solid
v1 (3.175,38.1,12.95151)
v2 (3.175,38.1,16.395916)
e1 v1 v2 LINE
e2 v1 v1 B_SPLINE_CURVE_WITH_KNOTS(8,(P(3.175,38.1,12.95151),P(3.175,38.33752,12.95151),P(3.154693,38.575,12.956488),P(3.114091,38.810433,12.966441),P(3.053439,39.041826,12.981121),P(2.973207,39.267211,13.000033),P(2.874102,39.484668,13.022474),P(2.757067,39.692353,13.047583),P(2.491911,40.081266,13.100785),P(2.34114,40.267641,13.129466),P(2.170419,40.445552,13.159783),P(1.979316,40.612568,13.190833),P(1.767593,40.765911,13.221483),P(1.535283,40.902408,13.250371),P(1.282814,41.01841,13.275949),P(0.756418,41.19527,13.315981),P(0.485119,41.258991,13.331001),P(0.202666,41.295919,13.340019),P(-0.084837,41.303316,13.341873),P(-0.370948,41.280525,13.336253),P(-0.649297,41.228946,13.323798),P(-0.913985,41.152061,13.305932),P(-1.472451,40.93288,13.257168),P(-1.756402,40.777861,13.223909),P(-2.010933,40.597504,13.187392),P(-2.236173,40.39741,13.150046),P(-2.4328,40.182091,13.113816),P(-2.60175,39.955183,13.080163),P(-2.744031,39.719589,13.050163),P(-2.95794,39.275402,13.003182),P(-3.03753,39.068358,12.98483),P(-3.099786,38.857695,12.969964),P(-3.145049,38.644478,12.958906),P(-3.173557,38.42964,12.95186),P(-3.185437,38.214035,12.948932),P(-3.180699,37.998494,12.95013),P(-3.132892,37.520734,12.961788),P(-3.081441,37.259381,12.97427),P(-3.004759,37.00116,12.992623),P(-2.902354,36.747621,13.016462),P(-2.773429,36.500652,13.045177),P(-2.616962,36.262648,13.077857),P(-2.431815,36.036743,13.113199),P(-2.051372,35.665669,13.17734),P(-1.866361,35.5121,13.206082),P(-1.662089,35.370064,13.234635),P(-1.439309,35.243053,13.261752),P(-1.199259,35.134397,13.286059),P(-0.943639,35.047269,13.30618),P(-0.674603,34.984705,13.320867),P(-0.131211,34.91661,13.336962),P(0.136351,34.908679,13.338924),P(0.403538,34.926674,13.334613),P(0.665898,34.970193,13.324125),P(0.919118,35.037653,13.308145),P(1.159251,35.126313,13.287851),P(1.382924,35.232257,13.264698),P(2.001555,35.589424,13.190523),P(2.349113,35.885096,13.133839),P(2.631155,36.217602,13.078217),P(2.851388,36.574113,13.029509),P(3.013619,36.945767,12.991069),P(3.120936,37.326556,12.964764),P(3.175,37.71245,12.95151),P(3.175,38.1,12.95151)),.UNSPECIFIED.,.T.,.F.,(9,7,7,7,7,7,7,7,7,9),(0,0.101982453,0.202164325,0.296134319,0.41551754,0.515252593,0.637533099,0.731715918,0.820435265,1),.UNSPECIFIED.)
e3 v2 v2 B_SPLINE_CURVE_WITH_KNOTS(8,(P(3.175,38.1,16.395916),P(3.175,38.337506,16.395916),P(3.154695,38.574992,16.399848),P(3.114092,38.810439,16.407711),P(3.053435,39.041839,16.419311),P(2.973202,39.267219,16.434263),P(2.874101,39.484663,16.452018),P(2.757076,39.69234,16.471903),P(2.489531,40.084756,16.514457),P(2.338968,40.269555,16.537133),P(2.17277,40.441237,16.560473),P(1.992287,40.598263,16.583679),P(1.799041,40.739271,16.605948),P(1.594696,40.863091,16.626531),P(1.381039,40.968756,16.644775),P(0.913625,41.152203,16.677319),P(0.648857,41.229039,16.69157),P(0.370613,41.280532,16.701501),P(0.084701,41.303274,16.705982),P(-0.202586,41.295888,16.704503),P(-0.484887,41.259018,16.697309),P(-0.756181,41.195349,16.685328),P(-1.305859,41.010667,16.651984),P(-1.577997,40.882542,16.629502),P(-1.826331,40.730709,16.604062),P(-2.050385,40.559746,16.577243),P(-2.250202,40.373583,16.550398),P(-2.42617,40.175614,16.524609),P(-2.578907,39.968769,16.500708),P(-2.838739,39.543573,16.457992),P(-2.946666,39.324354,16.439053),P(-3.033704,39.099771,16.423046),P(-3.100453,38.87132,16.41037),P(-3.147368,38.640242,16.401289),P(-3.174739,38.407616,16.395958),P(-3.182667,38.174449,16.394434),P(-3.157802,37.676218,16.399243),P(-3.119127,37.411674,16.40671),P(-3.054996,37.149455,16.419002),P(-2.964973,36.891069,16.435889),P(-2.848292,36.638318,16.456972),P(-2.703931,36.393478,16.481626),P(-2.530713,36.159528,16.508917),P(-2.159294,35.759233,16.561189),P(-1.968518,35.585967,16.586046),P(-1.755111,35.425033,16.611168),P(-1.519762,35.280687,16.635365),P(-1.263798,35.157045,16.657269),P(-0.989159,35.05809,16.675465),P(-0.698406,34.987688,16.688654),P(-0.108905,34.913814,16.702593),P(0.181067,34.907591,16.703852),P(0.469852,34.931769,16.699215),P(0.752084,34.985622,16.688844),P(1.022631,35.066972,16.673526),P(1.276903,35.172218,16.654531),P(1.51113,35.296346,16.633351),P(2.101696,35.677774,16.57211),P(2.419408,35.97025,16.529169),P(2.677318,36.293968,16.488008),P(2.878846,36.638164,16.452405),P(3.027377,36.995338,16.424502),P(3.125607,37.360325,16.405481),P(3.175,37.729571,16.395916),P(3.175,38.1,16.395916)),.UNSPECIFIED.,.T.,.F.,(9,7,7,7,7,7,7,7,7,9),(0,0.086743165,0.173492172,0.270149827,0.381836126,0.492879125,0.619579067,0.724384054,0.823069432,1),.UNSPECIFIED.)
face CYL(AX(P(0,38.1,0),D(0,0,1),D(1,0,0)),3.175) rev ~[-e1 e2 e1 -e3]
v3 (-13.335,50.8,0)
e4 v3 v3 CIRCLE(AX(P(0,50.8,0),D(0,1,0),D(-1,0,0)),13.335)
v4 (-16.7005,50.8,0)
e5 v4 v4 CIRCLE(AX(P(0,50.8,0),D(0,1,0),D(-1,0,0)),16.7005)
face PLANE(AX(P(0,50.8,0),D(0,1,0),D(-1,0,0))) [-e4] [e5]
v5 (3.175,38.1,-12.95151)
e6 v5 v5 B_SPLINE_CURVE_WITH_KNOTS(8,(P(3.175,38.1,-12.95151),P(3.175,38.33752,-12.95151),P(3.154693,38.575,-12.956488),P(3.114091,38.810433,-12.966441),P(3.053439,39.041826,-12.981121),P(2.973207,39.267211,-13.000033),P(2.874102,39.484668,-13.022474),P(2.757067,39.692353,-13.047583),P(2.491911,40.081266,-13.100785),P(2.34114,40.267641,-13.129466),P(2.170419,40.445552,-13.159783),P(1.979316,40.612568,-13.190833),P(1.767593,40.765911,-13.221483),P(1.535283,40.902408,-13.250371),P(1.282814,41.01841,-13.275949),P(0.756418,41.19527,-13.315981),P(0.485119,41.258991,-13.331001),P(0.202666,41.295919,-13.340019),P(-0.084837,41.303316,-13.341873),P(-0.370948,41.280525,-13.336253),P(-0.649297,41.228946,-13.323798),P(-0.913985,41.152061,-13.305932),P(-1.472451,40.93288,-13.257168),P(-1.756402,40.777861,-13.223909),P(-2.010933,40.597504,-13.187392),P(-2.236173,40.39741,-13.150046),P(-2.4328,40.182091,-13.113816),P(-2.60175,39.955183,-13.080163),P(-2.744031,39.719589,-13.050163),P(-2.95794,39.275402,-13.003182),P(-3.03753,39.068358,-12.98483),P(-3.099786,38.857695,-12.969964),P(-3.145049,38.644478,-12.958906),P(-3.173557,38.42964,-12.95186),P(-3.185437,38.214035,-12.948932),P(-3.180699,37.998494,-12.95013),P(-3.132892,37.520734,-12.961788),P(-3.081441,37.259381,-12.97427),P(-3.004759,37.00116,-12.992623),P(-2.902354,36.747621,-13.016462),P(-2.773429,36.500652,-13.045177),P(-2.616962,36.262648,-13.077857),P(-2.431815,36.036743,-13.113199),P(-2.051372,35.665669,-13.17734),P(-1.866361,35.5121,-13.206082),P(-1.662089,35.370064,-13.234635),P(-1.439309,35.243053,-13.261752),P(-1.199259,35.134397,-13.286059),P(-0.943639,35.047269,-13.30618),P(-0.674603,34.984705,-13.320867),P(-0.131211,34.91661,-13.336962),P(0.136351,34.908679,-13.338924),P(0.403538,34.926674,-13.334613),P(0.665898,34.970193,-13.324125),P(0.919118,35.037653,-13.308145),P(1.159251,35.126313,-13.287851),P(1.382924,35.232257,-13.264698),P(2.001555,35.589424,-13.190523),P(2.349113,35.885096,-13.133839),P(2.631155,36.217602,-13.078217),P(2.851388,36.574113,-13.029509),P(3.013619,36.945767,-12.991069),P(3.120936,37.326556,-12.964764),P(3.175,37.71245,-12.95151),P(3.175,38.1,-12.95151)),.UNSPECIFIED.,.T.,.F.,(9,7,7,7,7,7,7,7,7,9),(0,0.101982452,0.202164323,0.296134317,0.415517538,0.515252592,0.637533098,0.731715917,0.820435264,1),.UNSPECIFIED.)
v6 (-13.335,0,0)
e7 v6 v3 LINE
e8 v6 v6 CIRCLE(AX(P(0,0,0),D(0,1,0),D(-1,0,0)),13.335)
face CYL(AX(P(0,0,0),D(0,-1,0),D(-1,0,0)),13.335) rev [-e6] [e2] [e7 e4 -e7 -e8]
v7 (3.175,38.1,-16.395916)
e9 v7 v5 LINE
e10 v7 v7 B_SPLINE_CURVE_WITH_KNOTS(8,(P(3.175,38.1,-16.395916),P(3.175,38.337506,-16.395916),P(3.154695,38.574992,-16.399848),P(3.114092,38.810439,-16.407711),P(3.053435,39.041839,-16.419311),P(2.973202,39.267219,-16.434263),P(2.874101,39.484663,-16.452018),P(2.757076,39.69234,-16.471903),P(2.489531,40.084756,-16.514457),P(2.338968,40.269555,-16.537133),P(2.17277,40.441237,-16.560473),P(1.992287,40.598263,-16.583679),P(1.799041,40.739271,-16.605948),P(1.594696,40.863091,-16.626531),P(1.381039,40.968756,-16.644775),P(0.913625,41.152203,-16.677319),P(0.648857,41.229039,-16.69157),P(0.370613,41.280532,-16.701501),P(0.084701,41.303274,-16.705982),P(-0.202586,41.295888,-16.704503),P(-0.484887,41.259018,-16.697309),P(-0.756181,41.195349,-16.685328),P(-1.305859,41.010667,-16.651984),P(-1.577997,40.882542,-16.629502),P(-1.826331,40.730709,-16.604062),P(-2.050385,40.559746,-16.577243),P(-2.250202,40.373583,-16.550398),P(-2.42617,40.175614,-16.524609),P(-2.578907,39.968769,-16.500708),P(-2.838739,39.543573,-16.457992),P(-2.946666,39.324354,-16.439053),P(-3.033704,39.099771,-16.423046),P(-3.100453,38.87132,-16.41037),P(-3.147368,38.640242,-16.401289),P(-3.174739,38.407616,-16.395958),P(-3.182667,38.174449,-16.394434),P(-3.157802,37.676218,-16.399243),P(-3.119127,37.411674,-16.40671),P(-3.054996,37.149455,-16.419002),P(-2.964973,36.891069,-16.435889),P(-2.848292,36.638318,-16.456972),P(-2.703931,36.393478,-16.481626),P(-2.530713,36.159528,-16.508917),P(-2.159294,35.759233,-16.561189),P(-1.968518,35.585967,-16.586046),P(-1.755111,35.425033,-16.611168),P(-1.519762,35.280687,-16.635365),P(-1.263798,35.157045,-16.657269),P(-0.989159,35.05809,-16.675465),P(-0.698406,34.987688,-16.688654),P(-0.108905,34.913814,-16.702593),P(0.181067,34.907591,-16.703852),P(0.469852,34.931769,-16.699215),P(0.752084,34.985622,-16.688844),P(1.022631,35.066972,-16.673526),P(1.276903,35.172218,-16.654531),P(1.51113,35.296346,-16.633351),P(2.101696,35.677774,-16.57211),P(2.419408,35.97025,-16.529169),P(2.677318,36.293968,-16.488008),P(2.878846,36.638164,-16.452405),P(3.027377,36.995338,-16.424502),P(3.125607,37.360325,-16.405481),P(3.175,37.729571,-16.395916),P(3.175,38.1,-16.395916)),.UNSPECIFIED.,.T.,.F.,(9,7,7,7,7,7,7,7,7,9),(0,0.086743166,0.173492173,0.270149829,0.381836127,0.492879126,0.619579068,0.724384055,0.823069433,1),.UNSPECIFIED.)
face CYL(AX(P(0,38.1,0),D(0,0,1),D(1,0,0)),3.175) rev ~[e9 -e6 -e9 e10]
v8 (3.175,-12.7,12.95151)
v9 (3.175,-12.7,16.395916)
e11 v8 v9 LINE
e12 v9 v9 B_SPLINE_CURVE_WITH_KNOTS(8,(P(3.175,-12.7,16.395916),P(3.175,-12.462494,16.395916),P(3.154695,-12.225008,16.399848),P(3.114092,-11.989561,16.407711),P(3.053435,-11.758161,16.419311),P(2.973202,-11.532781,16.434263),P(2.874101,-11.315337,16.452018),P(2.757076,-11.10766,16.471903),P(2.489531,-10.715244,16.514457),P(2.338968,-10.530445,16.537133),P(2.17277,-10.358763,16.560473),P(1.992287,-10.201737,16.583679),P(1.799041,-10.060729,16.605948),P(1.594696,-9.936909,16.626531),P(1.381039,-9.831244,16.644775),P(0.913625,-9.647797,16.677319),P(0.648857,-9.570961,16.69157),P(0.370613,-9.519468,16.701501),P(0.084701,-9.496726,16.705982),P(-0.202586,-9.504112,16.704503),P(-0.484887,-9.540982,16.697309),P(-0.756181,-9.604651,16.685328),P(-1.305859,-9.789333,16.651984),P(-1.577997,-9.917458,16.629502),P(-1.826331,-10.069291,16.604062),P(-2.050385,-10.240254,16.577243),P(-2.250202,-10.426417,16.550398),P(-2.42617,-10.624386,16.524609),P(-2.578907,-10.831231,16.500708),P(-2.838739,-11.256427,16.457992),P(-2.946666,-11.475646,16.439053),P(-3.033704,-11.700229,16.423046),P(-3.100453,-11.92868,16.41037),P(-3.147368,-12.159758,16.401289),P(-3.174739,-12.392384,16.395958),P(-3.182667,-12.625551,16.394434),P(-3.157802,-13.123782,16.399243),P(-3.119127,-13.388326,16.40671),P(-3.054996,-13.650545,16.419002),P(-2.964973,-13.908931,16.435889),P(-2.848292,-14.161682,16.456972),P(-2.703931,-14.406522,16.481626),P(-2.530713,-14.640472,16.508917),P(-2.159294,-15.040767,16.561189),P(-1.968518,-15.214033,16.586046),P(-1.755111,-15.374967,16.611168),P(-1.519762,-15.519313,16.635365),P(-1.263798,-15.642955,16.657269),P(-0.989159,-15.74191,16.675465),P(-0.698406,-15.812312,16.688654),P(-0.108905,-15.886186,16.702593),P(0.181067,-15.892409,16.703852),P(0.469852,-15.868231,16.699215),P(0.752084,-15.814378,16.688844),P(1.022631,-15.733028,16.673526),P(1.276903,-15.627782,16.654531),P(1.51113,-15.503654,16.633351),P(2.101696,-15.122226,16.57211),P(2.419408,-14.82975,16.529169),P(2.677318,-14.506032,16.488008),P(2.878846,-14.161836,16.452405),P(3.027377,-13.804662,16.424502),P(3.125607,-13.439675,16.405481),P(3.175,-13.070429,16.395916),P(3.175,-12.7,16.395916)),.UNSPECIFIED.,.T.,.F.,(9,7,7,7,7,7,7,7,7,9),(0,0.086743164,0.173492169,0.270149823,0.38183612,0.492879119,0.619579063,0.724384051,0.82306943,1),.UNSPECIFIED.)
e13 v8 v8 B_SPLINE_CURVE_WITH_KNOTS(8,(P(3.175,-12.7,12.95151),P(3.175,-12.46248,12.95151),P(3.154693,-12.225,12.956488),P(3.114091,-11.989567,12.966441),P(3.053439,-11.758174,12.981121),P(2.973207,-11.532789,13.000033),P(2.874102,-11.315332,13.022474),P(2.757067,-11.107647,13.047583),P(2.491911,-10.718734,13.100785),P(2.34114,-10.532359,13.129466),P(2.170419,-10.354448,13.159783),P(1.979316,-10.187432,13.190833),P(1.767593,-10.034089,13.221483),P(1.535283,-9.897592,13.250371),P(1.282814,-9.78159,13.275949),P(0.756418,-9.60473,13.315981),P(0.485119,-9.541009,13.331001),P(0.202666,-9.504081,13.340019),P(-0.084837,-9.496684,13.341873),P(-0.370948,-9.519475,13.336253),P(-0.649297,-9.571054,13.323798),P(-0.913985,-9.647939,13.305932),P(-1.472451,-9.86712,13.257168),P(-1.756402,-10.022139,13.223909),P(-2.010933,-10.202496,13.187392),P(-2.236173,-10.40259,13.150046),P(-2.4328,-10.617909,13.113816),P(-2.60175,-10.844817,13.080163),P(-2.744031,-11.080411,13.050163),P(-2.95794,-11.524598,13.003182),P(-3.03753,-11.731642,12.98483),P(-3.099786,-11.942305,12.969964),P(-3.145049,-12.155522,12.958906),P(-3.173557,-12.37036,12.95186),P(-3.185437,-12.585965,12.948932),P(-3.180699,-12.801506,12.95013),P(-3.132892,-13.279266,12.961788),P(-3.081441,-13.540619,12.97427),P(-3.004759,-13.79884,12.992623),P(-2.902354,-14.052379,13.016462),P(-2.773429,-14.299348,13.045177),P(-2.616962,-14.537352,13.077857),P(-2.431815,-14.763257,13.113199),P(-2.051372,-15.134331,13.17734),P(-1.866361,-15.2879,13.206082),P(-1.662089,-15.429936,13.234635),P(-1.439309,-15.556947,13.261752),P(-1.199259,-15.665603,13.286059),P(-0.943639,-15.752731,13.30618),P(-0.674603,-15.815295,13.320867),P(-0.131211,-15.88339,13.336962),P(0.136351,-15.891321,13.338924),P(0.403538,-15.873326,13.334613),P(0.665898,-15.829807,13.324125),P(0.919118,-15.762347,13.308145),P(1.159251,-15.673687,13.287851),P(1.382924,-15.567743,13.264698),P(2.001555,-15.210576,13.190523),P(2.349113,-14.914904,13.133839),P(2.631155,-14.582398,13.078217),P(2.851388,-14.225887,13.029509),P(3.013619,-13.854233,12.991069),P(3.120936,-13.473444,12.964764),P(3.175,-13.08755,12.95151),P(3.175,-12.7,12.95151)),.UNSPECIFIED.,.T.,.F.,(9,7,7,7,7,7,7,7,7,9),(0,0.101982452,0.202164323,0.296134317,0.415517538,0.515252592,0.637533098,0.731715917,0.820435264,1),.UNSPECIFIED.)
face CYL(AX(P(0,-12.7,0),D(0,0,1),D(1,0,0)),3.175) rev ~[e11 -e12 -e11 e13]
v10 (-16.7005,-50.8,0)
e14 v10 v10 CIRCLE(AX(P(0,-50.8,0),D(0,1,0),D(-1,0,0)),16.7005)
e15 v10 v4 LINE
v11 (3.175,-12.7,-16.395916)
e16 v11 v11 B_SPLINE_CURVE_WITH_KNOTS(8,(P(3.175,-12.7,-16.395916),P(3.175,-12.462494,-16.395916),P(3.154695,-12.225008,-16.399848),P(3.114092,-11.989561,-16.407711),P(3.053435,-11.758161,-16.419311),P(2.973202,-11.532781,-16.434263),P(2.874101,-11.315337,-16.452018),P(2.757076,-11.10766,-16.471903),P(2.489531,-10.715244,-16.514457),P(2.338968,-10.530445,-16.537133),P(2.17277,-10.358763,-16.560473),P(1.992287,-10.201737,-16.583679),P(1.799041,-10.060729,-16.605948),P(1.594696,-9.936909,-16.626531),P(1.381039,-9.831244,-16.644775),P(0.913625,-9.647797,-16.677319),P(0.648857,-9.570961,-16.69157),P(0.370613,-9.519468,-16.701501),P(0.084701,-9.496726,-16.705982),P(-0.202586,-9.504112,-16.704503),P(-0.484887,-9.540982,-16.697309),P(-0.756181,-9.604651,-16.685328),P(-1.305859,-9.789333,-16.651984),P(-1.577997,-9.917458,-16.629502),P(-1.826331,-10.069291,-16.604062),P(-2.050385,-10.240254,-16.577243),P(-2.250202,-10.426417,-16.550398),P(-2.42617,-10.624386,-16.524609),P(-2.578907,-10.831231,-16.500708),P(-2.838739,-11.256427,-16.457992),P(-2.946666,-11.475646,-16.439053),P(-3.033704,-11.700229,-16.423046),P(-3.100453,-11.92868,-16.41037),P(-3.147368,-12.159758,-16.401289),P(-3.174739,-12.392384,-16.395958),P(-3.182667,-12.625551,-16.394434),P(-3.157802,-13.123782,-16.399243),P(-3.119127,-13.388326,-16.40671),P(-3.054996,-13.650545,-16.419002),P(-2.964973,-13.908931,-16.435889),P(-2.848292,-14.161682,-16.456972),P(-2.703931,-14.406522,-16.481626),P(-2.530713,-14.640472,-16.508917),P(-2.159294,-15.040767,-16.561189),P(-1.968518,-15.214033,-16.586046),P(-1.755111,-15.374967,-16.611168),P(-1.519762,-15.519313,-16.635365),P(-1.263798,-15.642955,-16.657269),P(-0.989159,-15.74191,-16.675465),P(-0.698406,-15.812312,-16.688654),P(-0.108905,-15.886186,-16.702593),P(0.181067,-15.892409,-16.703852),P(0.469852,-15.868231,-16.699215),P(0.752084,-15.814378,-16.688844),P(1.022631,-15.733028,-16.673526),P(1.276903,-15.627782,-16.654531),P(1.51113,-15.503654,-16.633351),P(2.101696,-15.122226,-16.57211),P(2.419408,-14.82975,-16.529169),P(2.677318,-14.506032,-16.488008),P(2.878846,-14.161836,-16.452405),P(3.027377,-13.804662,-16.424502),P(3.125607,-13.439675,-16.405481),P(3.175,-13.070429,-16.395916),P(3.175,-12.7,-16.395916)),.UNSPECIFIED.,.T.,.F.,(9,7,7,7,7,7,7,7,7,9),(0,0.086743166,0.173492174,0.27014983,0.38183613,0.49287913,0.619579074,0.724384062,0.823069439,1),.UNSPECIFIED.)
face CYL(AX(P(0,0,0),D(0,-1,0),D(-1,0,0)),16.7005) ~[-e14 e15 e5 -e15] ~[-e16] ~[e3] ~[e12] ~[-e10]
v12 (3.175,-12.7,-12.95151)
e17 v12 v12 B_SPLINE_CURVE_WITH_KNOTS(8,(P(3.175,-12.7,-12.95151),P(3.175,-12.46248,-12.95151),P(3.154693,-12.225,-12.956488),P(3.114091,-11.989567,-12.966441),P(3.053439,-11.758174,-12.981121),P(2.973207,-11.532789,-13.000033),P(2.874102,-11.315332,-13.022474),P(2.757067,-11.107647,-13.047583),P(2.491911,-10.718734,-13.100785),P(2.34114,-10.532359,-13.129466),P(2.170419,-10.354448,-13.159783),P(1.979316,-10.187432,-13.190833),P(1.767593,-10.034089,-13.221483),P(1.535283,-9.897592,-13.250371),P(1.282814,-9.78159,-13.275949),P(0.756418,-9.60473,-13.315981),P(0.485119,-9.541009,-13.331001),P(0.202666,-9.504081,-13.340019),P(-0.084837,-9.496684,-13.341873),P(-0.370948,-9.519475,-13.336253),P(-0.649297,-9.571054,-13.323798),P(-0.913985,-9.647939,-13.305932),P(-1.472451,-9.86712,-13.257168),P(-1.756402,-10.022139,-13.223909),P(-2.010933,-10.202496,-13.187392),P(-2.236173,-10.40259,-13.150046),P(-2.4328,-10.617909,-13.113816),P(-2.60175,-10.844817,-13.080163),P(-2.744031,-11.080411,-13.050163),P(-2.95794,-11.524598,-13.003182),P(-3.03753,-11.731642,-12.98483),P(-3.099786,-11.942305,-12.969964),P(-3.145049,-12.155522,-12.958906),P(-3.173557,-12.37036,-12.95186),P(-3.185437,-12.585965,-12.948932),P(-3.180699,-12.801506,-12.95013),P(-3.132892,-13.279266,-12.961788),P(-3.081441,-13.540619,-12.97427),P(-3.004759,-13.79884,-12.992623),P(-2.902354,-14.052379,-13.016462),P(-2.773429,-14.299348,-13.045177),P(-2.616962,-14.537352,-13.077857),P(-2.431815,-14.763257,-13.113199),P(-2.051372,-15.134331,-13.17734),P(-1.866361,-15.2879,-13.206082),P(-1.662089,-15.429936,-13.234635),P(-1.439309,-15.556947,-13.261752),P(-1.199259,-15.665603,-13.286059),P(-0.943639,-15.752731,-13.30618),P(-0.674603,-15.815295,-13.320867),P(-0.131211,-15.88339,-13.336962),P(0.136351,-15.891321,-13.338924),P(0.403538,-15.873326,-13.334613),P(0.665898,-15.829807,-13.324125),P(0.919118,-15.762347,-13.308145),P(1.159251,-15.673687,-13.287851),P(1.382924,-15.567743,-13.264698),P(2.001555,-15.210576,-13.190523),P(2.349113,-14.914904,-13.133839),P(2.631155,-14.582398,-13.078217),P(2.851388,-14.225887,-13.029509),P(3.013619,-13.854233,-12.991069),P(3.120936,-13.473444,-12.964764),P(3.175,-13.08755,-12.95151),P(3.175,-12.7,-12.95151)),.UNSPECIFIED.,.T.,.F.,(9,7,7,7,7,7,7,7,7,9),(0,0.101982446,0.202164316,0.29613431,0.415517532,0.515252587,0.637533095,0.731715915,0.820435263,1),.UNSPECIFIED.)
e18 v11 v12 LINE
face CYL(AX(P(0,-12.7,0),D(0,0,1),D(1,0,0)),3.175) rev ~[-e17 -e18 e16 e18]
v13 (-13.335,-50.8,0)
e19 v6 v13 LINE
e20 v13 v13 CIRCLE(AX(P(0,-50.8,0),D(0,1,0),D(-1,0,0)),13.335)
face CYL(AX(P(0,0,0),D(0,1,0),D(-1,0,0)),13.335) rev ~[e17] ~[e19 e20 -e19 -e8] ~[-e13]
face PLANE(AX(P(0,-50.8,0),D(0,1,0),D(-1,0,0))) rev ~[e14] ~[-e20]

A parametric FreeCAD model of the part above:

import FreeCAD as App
import Part
import Sketcher

V = App.Vector
Q = App.Units.Quantity

doc = App.newDocument("Part")
body = doc.addObject("PartDesign::Body", "Body")

# Sketch on XZ plane
sketch1 = doc.addObject("Sketcher::SketchObject", "Sketch")
body.addObject(sketch1)
sketch1.AttachmentSupport = (doc.XZ_Plane, [""])
sketch1.MapMode = "FlatFace"
sketch1.addGeometry(Part.Circle(V(0, 0, 0), V(0, 0, 1), 17), False)
sketch1.addGeometry(Part.Circle(V(0, 0, 0), V(0, 0, 1), 13), False)
sketch1.addConstraint(Sketcher.Constraint("Coincident", 0, 3, -1, 1))
sketch1.addConstraint(Sketcher.Constraint("Coincident", 1, 3, -1, 1))
sketch1.addConstraint(Sketcher.Constraint("Diameter", 1, Q("1.05 in")))
sketch1.addConstraint(Sketcher.Constraint("Diameter", 0, Q("1.315 in")))
pad1 = doc.addObject("PartDesign::Pad", "Pad")
body.addObject(pad1)
pad1.Profile = sketch1
pad1.Length = Q("4 in")
pad1.Midplane = True

# Sketch on XY plane
sketch2 = doc.addObject("Sketcher::SketchObject", "Sketch001")
body.addObject(sketch2)
sketch2.AttachmentSupport = (doc.XY_Plane, [""])
sketch2.MapMode = "FlatFace"
sketch2.addGeometry(Part.Circle(V(0, 38.1, 0), V(0, 0, 1), 3.2), False)
sketch2.addGeometry(Part.Circle(V(0, -12.7, 0), V(0, 0, 1), 3.2), False)
sketch2.addConstraint(Sketcher.Constraint("Equal", 0, 1))
sketch2.addConstraint(Sketcher.Constraint("PointOnObject", 0, 3, -2))
sketch2.addConstraint(Sketcher.Constraint("PointOnObject", 1, 3, -2))
sketch2.addConstraint(Sketcher.Constraint("Diameter", 0, Q("0.25 in")))
sketch2.addConstraint(Sketcher.Constraint("DistanceY", 1, 3, 0, 3, Q("2 in")))
sketch2.addConstraint(Sketcher.Constraint("DistanceY", 1, 3, -1, 1, Q("0.5 in")))
pocket1 = doc.addObject("PartDesign::Pocket", "Pocket")
body.addObject(pocket1)
pocket1.Profile = sketch2
pocket1.Type = "ThroughAll"
pocket1.Midplane = True

doc.recompute()
